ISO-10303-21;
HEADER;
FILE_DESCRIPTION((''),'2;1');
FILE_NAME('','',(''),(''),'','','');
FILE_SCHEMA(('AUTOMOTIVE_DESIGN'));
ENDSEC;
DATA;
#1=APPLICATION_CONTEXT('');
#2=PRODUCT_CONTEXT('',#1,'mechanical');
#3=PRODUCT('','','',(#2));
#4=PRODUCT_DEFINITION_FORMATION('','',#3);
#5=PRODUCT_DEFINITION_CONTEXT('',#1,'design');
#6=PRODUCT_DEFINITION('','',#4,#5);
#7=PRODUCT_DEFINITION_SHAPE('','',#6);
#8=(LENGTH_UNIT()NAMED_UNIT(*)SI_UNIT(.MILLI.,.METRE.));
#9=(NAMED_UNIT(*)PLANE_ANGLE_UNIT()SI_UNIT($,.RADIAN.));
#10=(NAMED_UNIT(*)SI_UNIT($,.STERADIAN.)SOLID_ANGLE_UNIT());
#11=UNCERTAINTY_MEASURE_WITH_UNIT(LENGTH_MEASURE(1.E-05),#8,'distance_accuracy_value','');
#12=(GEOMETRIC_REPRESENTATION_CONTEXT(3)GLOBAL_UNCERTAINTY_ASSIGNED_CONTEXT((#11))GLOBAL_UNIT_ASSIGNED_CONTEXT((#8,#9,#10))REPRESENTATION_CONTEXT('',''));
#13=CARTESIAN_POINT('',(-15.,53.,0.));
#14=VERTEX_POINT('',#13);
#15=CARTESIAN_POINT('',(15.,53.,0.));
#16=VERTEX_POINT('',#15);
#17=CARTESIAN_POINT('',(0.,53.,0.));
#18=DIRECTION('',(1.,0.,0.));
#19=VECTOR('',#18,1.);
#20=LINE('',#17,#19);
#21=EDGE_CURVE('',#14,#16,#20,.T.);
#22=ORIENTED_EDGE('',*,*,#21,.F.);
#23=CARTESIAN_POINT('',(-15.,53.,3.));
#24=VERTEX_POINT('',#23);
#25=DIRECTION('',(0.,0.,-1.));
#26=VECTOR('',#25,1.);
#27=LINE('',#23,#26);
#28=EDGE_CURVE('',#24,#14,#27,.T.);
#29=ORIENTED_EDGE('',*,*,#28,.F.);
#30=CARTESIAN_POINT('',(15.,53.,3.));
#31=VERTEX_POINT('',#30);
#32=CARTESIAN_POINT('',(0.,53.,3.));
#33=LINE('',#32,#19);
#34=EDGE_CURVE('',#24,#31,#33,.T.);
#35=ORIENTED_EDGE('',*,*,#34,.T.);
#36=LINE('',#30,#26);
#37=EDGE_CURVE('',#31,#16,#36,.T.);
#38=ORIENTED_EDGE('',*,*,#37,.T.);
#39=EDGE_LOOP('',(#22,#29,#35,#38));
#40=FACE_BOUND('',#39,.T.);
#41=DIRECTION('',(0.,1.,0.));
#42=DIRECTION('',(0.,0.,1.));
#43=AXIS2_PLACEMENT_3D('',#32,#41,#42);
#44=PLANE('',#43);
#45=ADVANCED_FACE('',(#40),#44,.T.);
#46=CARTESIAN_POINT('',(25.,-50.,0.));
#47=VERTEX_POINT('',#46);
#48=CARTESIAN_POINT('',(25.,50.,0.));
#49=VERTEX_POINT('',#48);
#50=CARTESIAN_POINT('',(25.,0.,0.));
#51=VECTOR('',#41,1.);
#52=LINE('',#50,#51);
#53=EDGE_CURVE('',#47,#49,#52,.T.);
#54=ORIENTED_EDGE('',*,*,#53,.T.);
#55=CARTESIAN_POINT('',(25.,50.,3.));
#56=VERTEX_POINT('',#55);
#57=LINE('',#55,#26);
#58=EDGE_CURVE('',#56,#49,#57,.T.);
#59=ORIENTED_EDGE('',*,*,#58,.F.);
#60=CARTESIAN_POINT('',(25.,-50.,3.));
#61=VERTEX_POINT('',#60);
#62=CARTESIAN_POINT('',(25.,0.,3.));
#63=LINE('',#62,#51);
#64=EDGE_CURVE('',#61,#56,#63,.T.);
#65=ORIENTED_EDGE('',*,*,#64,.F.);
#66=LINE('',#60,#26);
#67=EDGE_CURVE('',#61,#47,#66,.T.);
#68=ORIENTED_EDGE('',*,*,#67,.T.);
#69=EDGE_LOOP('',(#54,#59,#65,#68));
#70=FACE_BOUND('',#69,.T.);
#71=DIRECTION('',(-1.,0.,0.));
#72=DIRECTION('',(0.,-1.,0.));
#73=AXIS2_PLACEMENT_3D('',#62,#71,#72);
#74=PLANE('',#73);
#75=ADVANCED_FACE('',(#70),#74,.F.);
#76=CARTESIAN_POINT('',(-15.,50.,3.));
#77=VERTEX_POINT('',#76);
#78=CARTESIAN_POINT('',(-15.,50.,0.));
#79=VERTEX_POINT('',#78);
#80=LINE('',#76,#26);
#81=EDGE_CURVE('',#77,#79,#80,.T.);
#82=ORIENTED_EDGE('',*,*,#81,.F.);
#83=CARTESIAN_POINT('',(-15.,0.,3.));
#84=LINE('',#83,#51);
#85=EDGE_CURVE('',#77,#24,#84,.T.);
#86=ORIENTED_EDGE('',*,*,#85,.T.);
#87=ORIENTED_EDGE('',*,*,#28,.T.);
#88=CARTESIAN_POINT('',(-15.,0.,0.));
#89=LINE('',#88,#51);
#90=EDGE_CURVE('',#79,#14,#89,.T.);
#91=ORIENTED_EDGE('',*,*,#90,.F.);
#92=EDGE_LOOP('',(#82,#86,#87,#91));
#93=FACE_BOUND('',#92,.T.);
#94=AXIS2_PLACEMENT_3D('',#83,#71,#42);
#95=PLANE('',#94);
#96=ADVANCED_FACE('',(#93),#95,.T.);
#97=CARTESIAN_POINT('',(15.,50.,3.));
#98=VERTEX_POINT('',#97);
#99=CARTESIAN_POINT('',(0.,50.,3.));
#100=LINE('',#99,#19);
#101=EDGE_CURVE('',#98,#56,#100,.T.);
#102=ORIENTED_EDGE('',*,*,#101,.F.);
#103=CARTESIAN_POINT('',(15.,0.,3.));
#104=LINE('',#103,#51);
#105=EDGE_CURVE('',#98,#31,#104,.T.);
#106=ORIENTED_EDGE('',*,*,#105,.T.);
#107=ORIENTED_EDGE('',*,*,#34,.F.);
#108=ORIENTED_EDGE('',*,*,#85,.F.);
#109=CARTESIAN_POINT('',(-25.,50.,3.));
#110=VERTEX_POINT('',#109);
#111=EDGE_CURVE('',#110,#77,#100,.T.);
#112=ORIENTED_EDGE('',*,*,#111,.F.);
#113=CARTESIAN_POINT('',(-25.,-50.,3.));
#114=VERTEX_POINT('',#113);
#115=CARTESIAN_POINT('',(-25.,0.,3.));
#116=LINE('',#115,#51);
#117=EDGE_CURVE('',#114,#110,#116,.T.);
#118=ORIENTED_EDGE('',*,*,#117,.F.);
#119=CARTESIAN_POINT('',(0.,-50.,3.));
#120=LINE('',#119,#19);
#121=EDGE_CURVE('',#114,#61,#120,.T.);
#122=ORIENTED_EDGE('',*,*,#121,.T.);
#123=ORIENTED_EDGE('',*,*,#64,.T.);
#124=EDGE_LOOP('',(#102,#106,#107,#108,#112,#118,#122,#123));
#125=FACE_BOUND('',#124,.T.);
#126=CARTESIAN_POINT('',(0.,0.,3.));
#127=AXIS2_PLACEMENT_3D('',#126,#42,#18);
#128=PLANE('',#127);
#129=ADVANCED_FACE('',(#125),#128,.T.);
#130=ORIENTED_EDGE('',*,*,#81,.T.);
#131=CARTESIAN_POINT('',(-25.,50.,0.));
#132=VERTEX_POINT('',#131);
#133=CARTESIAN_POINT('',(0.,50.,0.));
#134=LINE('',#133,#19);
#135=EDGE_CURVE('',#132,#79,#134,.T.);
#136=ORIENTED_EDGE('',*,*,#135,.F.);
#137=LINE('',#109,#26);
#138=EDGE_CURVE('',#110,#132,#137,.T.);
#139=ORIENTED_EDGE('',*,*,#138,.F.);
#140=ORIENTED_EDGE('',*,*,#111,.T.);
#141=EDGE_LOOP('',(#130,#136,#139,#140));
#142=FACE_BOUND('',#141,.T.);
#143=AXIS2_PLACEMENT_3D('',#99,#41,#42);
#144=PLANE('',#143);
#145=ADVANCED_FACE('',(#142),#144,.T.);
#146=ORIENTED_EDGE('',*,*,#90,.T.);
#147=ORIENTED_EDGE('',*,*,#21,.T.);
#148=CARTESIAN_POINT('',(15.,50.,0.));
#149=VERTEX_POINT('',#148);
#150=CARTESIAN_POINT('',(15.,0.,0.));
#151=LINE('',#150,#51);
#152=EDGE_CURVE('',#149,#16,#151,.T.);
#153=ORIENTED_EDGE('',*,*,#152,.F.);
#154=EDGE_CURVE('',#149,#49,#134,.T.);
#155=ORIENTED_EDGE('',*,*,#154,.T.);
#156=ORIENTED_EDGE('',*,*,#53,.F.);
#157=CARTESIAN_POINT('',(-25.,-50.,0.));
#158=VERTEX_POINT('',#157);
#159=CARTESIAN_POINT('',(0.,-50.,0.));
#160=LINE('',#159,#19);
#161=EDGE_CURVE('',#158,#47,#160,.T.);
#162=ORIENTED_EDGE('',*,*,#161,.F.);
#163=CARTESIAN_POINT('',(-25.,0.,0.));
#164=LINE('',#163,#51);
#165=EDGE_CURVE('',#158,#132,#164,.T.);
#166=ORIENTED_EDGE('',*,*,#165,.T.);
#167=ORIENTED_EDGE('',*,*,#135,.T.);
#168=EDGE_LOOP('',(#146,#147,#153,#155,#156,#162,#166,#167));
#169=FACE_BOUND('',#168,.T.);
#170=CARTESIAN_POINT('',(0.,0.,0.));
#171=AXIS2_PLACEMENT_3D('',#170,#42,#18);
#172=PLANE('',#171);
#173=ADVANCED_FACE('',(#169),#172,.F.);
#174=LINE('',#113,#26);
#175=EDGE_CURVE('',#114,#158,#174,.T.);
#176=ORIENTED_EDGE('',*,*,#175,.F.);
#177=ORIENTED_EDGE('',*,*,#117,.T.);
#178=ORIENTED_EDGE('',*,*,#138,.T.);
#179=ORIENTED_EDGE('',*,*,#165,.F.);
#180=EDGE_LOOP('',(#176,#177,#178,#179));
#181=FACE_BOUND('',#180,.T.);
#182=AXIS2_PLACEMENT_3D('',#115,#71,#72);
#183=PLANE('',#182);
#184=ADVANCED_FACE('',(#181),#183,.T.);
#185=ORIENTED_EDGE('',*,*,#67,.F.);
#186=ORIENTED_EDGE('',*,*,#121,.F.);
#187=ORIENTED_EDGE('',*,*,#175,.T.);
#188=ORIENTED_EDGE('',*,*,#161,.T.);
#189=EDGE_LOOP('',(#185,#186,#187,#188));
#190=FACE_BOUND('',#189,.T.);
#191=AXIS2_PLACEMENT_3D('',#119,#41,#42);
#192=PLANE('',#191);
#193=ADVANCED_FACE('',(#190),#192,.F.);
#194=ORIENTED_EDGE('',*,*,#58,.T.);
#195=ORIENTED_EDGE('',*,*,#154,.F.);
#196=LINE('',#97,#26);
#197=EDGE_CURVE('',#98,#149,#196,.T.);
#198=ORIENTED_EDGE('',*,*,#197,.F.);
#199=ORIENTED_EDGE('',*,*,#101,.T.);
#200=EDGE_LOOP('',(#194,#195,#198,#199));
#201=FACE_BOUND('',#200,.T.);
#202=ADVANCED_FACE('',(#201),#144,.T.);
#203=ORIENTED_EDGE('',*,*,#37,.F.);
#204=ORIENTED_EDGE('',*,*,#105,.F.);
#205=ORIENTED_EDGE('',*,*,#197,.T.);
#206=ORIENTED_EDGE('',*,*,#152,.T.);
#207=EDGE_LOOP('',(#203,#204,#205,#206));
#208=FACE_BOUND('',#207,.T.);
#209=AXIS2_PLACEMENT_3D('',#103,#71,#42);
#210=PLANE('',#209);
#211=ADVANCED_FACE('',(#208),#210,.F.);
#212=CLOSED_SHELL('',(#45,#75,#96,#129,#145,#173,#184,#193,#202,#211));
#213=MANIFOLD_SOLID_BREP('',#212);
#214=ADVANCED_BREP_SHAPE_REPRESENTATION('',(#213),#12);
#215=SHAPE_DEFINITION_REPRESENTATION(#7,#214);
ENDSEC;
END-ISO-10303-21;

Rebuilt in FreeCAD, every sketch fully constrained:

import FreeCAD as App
import Part
import Sketcher
from FreeCAD import Vector
Q = App.Units.Quantity

doc = App.newDocument("Part")
body = doc.addObject("PartDesign::Body", "Body")

# Sketch on XY plane
sketch1 = body.newObject("Sketcher::SketchObject", "Sketch")
sketch1.AttachmentSupport = (doc.getObject("XY_Plane"), [""])
sketch1.MapMode = "FlatFace"
sketch1.addGeometry(Part.LineSegment(Vector(-25, 50, 0), Vector(-25, -50, 0)), False)
sketch1.addGeometry(Part.LineSegment(Vector(-25, -50, 0), Vector(25, -50, 0)), False)
sketch1.addGeometry(Part.LineSegment(Vector(25, -50, 0), Vector(25, 50, 0)), False)
sketch1.addGeometry(Part.LineSegment(Vector(25, 50, 0), Vector(15, 50, 0)), False)
sketch1.addGeometry(Part.LineSegment(Vector(15, 50, 0), Vector(15, 53, 0)), False)
sketch1.addGeometry(Part.LineSegment(Vector(15, 53, 0), Vector(-15, 53, 0)), False)
sketch1.addGeometry(Part.LineSegment(Vector(-15, 53, 0), Vector(-15, 50, 0)), False)
sketch1.addGeometry(Part.LineSegment(Vector(-15, 50, 0), Vector(-25, 50, 0)), False)
sketch1.addConstraint(Sketcher.Constraint("Coincident", 0, 2, 1, 1))
sketch1.addConstraint(Sketcher.Constraint("Coincident", 1, 2, 2, 1))
sketch1.addConstraint(Sketcher.Constraint("Coincident", 2, 2, 3, 1))
sketch1.addConstraint(Sketcher.Constraint("Coincident", 3, 2, 4, 1))
sketch1.addConstraint(Sketcher.Constraint("Coincident", 4, 2, 5, 1))
sketch1.addConstraint(Sketcher.Constraint("Coincident", 5, 2, 6, 1))
sketch1.addConstraint(Sketcher.Constraint("Coincident", 6, 2, 7, 1))
sketch1.addConstraint(Sketcher.Constraint("Coincident", 7, 2, 0, 1))
sketch1.addConstraint(Sketcher.Constraint("Vertical", 0))
sketch1.addConstraint(Sketcher.Constraint("Horizontal", 1))
sketch1.addConstraint(Sketcher.Constraint("Vertical", 2))
sketch1.addConstraint(Sketcher.Constraint("Horizontal", 3))
sketch1.addConstraint(Sketcher.Constraint("Vertical", 4))
sketch1.addConstraint(Sketcher.Constraint("Horizontal", 5))
sketch1.addConstraint(Sketcher.Constraint("Vertical", 6))
sketch1.addConstraint(Sketcher.Constraint("Horizontal", 7))
sketch1.addConstraint(Sketcher.Constraint("Symmetric", 0, 2, 2, 2, -1, 1))
sketch1.addConstraint(Sketcher.Constraint("Symmetric", 3, 2, 6, 2, -2))
sketch1.addConstraint(Sketcher.Constraint("DistanceX", 1, 1, 1, 2, Q("50 mm")))
sketch1.addConstraint(Sketcher.Constraint("DistanceX", 3, 2, 3, 1, Q("10 mm")))
sketch1.addConstraint(Sketcher.Constraint("DistanceY", 0, 2, 0, 1, Q("100 mm")))
sketch1.addConstraint(Sketcher.Constraint("DistanceY", 4, 1, 4, 2, Q("3 mm")))
pad1 = body.newObject("PartDesign::Pad", "Pad")
pad1.Profile = sketch1
pad1.Length = 3

doc.recompute()
